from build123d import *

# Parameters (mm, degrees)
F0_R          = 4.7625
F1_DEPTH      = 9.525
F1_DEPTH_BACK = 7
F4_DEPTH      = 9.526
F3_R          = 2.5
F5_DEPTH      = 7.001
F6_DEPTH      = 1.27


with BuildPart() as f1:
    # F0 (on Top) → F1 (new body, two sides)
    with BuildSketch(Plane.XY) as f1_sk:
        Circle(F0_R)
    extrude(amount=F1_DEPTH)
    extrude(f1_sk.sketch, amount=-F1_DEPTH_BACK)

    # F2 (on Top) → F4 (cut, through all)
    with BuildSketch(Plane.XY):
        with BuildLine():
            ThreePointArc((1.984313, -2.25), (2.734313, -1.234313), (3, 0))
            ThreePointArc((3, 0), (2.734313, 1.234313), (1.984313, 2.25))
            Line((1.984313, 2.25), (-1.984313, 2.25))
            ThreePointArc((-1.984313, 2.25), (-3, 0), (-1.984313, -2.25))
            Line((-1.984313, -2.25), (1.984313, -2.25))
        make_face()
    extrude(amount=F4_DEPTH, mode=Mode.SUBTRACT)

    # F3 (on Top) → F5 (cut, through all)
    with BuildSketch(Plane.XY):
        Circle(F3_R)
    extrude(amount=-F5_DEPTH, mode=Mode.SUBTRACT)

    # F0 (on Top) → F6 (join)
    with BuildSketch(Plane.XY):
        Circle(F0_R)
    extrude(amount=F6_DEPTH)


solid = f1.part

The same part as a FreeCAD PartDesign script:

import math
import FreeCAD as App
import Part
import Sketcher

V = App.Vector
Q = App.Units.Quantity

doc = App.newDocument("Part")
body = doc.addObject("PartDesign::Body", "Body")

# Sketch on XY plane
sketch1 = body.newObject("Sketcher::SketchObject", "Sketch")
sketch1.AttachmentSupport = (doc.getObject("XY_Plane"), [""])
sketch1.MapMode = "FlatFace"
sketch1.addGeometry(Part.Circle(V(0, 0, 0), V(0, 0, 1), 4.8), False)
sketch1.addConstraint(Sketcher.Constraint("Coincident", 0, 3, -1, 1))
sketch1.addConstraint(Sketcher.Constraint("Diameter", 0, Q("0.375 in")))
pad1 = body.newObject("PartDesign::Pad", "Pad")
pad1.Profile = sketch1
pad1.Type = "TwoLengths"
pad1.Length = Q("0.375 in")
pad1.Length2 = 7

# Sketch on XY plane
sketch2 = body.newObject("Sketcher::SketchObject", "Sketch001")
sketch2.AttachmentSupport = (doc.getObject("XY_Plane"), [""])
sketch2.MapMode = "FlatFace"
sketch2.addGeometry(Part.ArcOfCircle(Part.Circle(V(0, 0, 0), V(0, 0, 1), 3), math.radians(-49), math.radians(0)), False)
sketch2.addGeometry(Part.ArcOfCircle(Part.Circle(V(0, 0, 0), V(0, 0, 1), 3), math.radians(0), math.radians(49)), False)
sketch2.addGeometry(Part.LineSegment(V(2, 2.2, 0), V(-2, 2.2, 0)), False)
sketch2.addGeometry(Part.ArcOfCircle(Part.Circle(V(0, 0, 0), V(0, 0, 1), 3), math.radians(131), math.radians(229)), False)
sketch2.addGeometry(Part.LineSegment(V(-2, -2.2, 0), V(2, -2.2, 0)), False)
sketch2.addConstraint(Sketcher.Constraint("Tangent", 0, 2, 1, 1))
sketch2.addConstraint(Sketcher.Constraint("Coincident", 1, 2, 2, 1))
sketch2.addConstraint(Sketcher.Constraint("Coincident", 2, 2, 3, 1))
sketch2.addConstraint(Sketcher.Constraint("Coincident", 3, 2, 4, 1))
sketch2.addConstraint(Sketcher.Constraint("Coincident", 4, 2, 0, 1))
sketch2.addConstraint(Sketcher.Constraint("Horizontal", 2))
sketch2.addConstraint(Sketcher.Constraint("Horizontal", 4))
sketch2.addConstraint(Sketcher.Constraint("Coincident", 0, 3, -1, 1))
sketch2.addConstraint(Sketcher.Constraint("Coincident", 3, 3, -1, 1))
sketch2.addConstraint(Sketcher.Constraint("Equal", 0, 1))
sketch2.addConstraint(Sketcher.Constraint("Symmetric", 1, 2, 3, 2, -1, 1))
sketch2.addConstraint(Sketcher.Constraint("PointOnObject", 0, 2, -1))
sketch2.addConstraint(Sketcher.Constraint("Radius", 3, Q("2.999999 mm")))
sketch2.addConstraint(Sketcher.Constraint("DistanceY", -1, 1, 1, 2, Q("2.25 mm")))
pocket1 = body.newObject("PartDesign::Pocket", "Pocket")
pocket1.Profile = sketch2
pocket1.Type = "ThroughAll"
pocket1.Reversed = True

# Sketch on XY plane
sketch3 = body.newObject("Sketcher::SketchObject", "Sketch002")
sketch3.AttachmentSupport = (doc.getObject("XY_Plane"), [""])
sketch3.MapMode = "FlatFace"
sketch3.addGeometry(Part.Circle(V(0, 0, 0), V(0, 0, 1), 2.5), False)
sketch3.addConstraint(Sketcher.Constraint("Coincident", 0, 3, -1, 1))
sketch3.addConstraint(Sketcher.Constraint("Diameter", 0, Q("5 mm")))
pocket2 = body.newObject("PartDesign::Pocket", "Pocket001")
pocket2.Profile = sketch3
pocket2.Type = "ThroughAll"

# Sketch on XY plane
sketch4 = body.newObject("Sketcher::SketchObject", "Sketch003")
sketch4.AttachmentSupport = (doc.getObject("XY_Plane"), [""])
sketch4.MapMode = "FlatFace"
sketch4.addGeometry(Part.Circle(V(0, 0, 0), V(0, 0, 1), 4.8), False)
sketch4.addConstraint(Sketcher.Constraint("Coincident", 0, 3, -1, 1))
sketch4.addConstraint(Sketcher.Constraint("Diameter", 0, Q("0.375 in")))
pad2 = body.newObject("PartDesign::Pad", "Pad001")
pad2.Profile = sketch4
pad2.Length = Q("0.05 in")

doc.recompute()
